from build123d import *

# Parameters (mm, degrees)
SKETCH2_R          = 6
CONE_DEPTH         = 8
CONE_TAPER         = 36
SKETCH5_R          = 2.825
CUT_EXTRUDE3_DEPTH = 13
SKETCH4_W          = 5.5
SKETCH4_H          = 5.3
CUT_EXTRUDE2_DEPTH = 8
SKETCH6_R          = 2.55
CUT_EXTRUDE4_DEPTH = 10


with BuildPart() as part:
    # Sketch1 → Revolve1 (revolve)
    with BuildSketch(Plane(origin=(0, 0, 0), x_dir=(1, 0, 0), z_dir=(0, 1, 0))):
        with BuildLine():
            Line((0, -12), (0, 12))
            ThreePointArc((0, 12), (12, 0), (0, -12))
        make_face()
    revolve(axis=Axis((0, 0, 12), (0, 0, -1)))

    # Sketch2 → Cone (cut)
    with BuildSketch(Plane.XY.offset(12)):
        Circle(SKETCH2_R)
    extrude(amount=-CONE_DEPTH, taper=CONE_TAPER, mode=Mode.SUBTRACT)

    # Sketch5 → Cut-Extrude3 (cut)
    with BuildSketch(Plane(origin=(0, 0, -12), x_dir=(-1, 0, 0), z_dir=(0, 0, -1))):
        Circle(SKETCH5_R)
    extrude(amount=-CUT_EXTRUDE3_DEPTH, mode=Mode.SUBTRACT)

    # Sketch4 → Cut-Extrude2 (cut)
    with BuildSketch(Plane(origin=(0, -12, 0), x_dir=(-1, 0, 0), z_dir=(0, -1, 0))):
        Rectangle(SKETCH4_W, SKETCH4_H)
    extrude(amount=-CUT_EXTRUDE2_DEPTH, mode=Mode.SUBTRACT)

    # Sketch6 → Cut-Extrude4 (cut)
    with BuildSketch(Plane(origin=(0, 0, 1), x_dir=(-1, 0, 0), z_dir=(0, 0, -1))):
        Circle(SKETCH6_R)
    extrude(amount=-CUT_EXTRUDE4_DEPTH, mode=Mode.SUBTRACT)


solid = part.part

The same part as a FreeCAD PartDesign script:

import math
import FreeCAD as App
import Part
import Sketcher
Q = App.Units.Quantity


def add_polygon(sketch, points):
    """Adds a closed chain of lines whose ends are joined by coincident constraints."""
    first, n = sketch.GeometryCount, len(points)
    for a, b in zip(points, points[1:] + points[:1]):
        sketch.addGeometry(Part.LineSegment(App.Vector(*a, 0), App.Vector(*b, 0)), False)
    for i in range(n):
        sketch.addConstraint(Sketcher.Constraint("Coincident", first + i, 2, first + (i + 1) % n, 1))

doc = App.newDocument("Part")
body = doc.addObject("PartDesign::Body", "Body")

# Sketch on XZ plane
sketch1 = body.newObject("Sketcher::SketchObject", "Sketch")
sketch1.AttachmentSupport = (doc.getObject("XZ_Plane"), [""])
sketch1.MapMode = "FlatFace"
sketch1.addGeometry([
    Part.LineSegment(App.Vector(0, -12, 0), App.Vector(0, 12, 0)),
    Part.ArcOfCircle(Part.Circle(App.Vector(0, 0, 0), App.Vector(0, 0, 1), 12), math.radians(-90), math.radians(90)),
], False)
sketch1.addConstraint([
    Sketcher.Constraint("Coincident", 0, 1, 1, 1),
    Sketcher.Constraint("Coincident", 1, 2, 0, 2),
    Sketcher.Constraint("Vertical", 0),
    Sketcher.Constraint("Coincident", 1, 3, -1, 1),
    Sketcher.Constraint("PointOnObject", 0, 1, -2),
    Sketcher.Constraint("Radius", 1, Q("12 mm")),
])
revolution = body.newObject("PartDesign::Revolution", "Revolution")
revolution.Profile = sketch1
revolution.ReferenceAxis = (sketch1, ["V_Axis"])
revolution.Angle = 360

# Sketch on XY plane
sketch2 = body.newObject("Sketcher::SketchObject", "Sketch001")
sketch2.AttachmentSupport = (doc.getObject("XY_Plane"), [""])
sketch2.MapMode = "FlatFace"
sketch2.AttachmentOffset = App.Placement(App.Vector(0, 0, 12), App.Rotation())
sketch2.addGeometry(Part.Circle(App.Vector(0, 0, 0), App.Vector(0, 0, 1), 6), False)
sketch2.addConstraint([
    Sketcher.Constraint("Coincident", 0, 3, -1, 1),
    Sketcher.Constraint("Diameter", 0, Q("12 mm")),
])
pocket1 = body.newObject("PartDesign::Pocket", "Pocket")
pocket1.Profile = sketch2
pocket1.Length = 8
pocket1.TaperAngle = -36

# Sketch on XY plane
sketch3 = body.newObject("Sketcher::SketchObject", "Sketch002")
sketch3.AttachmentSupport = (doc.getObject("XY_Plane"), [""])
sketch3.MapMode = "FlatFace"
sketch3.AttachmentOffset = App.Placement(App.Vector(0, 0, -12), App.Rotation())
sketch3.addGeometry(Part.Circle(App.Vector(0, 0, 0), App.Vector(0, 0, 1), 2.8), False)
sketch3.addConstraint([
    Sketcher.Constraint("Coincident", 0, 3, -1, 1),
    Sketcher.Constraint("Diameter", 0, Q("5.65 mm")),
])
pocket2 = body.newObject("PartDesign::Pocket", "Pocket001")
pocket2.Profile = sketch3
pocket2.Length = 13
pocket2.Reversed = True

# Sketch on XZ plane
sketch4 = body.newObject("Sketcher::SketchObject", "Sketch003")
sketch4.AttachmentSupport = (doc.getObject("XZ_Plane"), [""])
sketch4.MapMode = "FlatFace"
sketch4.AttachmentOffset = App.Placement(App.Vector(0, 0, 12), App.Rotation())
add_polygon(sketch4, [(3, -3), (3, 3), (-3, 3), (-3, -3)])  # lines 0-3
sketch4.addConstraint([
    Sketcher.Constraint("Vertical", 0),
    Sketcher.Constraint("Horizontal", 1),
    Sketcher.Constraint("Vertical", 2),
    Sketcher.Constraint("Horizontal", 3),
    Sketcher.Constraint("Symmetric", 0, 2, 2, 2, -1, 1),
    Sketcher.Constraint("DistanceX", 1, 2, 1, 1, Q("5.5 mm")),
    Sketcher.Constraint("DistanceY", 0, 1, 0, 2, Q("5.3 mm")),
])
pocket3 = body.newObject("PartDesign::Pocket", "Pocket002")
pocket3.Profile = sketch4
pocket3.Length = 8

# Sketch on XY plane
sketch5 = body.newObject("Sketcher::SketchObject", "Sketch004")
sketch5.AttachmentSupport = (doc.getObject("XY_Plane"), [""])
sketch5.MapMode = "FlatFace"
sketch5.AttachmentOffset = App.Placement(App.Vector(0, 0, 1), App.Rotation())
sketch5.addGeometry(Part.Circle(App.Vector(0, 0, 0), App.Vector(0, 0, 1), 2.5), False)
sketch5.addConstraint([
    Sketcher.Constraint("Coincident", 0, 3, -1, 1),
    Sketcher.Constraint("Diameter", 0, Q("5.1 mm")),
])
pocket4 = body.newObject("PartDesign::Pocket", "Pocket003")
pocket4.Profile = sketch5
pocket4.Length = 10
pocket4.Reversed = True

doc.recompute()
